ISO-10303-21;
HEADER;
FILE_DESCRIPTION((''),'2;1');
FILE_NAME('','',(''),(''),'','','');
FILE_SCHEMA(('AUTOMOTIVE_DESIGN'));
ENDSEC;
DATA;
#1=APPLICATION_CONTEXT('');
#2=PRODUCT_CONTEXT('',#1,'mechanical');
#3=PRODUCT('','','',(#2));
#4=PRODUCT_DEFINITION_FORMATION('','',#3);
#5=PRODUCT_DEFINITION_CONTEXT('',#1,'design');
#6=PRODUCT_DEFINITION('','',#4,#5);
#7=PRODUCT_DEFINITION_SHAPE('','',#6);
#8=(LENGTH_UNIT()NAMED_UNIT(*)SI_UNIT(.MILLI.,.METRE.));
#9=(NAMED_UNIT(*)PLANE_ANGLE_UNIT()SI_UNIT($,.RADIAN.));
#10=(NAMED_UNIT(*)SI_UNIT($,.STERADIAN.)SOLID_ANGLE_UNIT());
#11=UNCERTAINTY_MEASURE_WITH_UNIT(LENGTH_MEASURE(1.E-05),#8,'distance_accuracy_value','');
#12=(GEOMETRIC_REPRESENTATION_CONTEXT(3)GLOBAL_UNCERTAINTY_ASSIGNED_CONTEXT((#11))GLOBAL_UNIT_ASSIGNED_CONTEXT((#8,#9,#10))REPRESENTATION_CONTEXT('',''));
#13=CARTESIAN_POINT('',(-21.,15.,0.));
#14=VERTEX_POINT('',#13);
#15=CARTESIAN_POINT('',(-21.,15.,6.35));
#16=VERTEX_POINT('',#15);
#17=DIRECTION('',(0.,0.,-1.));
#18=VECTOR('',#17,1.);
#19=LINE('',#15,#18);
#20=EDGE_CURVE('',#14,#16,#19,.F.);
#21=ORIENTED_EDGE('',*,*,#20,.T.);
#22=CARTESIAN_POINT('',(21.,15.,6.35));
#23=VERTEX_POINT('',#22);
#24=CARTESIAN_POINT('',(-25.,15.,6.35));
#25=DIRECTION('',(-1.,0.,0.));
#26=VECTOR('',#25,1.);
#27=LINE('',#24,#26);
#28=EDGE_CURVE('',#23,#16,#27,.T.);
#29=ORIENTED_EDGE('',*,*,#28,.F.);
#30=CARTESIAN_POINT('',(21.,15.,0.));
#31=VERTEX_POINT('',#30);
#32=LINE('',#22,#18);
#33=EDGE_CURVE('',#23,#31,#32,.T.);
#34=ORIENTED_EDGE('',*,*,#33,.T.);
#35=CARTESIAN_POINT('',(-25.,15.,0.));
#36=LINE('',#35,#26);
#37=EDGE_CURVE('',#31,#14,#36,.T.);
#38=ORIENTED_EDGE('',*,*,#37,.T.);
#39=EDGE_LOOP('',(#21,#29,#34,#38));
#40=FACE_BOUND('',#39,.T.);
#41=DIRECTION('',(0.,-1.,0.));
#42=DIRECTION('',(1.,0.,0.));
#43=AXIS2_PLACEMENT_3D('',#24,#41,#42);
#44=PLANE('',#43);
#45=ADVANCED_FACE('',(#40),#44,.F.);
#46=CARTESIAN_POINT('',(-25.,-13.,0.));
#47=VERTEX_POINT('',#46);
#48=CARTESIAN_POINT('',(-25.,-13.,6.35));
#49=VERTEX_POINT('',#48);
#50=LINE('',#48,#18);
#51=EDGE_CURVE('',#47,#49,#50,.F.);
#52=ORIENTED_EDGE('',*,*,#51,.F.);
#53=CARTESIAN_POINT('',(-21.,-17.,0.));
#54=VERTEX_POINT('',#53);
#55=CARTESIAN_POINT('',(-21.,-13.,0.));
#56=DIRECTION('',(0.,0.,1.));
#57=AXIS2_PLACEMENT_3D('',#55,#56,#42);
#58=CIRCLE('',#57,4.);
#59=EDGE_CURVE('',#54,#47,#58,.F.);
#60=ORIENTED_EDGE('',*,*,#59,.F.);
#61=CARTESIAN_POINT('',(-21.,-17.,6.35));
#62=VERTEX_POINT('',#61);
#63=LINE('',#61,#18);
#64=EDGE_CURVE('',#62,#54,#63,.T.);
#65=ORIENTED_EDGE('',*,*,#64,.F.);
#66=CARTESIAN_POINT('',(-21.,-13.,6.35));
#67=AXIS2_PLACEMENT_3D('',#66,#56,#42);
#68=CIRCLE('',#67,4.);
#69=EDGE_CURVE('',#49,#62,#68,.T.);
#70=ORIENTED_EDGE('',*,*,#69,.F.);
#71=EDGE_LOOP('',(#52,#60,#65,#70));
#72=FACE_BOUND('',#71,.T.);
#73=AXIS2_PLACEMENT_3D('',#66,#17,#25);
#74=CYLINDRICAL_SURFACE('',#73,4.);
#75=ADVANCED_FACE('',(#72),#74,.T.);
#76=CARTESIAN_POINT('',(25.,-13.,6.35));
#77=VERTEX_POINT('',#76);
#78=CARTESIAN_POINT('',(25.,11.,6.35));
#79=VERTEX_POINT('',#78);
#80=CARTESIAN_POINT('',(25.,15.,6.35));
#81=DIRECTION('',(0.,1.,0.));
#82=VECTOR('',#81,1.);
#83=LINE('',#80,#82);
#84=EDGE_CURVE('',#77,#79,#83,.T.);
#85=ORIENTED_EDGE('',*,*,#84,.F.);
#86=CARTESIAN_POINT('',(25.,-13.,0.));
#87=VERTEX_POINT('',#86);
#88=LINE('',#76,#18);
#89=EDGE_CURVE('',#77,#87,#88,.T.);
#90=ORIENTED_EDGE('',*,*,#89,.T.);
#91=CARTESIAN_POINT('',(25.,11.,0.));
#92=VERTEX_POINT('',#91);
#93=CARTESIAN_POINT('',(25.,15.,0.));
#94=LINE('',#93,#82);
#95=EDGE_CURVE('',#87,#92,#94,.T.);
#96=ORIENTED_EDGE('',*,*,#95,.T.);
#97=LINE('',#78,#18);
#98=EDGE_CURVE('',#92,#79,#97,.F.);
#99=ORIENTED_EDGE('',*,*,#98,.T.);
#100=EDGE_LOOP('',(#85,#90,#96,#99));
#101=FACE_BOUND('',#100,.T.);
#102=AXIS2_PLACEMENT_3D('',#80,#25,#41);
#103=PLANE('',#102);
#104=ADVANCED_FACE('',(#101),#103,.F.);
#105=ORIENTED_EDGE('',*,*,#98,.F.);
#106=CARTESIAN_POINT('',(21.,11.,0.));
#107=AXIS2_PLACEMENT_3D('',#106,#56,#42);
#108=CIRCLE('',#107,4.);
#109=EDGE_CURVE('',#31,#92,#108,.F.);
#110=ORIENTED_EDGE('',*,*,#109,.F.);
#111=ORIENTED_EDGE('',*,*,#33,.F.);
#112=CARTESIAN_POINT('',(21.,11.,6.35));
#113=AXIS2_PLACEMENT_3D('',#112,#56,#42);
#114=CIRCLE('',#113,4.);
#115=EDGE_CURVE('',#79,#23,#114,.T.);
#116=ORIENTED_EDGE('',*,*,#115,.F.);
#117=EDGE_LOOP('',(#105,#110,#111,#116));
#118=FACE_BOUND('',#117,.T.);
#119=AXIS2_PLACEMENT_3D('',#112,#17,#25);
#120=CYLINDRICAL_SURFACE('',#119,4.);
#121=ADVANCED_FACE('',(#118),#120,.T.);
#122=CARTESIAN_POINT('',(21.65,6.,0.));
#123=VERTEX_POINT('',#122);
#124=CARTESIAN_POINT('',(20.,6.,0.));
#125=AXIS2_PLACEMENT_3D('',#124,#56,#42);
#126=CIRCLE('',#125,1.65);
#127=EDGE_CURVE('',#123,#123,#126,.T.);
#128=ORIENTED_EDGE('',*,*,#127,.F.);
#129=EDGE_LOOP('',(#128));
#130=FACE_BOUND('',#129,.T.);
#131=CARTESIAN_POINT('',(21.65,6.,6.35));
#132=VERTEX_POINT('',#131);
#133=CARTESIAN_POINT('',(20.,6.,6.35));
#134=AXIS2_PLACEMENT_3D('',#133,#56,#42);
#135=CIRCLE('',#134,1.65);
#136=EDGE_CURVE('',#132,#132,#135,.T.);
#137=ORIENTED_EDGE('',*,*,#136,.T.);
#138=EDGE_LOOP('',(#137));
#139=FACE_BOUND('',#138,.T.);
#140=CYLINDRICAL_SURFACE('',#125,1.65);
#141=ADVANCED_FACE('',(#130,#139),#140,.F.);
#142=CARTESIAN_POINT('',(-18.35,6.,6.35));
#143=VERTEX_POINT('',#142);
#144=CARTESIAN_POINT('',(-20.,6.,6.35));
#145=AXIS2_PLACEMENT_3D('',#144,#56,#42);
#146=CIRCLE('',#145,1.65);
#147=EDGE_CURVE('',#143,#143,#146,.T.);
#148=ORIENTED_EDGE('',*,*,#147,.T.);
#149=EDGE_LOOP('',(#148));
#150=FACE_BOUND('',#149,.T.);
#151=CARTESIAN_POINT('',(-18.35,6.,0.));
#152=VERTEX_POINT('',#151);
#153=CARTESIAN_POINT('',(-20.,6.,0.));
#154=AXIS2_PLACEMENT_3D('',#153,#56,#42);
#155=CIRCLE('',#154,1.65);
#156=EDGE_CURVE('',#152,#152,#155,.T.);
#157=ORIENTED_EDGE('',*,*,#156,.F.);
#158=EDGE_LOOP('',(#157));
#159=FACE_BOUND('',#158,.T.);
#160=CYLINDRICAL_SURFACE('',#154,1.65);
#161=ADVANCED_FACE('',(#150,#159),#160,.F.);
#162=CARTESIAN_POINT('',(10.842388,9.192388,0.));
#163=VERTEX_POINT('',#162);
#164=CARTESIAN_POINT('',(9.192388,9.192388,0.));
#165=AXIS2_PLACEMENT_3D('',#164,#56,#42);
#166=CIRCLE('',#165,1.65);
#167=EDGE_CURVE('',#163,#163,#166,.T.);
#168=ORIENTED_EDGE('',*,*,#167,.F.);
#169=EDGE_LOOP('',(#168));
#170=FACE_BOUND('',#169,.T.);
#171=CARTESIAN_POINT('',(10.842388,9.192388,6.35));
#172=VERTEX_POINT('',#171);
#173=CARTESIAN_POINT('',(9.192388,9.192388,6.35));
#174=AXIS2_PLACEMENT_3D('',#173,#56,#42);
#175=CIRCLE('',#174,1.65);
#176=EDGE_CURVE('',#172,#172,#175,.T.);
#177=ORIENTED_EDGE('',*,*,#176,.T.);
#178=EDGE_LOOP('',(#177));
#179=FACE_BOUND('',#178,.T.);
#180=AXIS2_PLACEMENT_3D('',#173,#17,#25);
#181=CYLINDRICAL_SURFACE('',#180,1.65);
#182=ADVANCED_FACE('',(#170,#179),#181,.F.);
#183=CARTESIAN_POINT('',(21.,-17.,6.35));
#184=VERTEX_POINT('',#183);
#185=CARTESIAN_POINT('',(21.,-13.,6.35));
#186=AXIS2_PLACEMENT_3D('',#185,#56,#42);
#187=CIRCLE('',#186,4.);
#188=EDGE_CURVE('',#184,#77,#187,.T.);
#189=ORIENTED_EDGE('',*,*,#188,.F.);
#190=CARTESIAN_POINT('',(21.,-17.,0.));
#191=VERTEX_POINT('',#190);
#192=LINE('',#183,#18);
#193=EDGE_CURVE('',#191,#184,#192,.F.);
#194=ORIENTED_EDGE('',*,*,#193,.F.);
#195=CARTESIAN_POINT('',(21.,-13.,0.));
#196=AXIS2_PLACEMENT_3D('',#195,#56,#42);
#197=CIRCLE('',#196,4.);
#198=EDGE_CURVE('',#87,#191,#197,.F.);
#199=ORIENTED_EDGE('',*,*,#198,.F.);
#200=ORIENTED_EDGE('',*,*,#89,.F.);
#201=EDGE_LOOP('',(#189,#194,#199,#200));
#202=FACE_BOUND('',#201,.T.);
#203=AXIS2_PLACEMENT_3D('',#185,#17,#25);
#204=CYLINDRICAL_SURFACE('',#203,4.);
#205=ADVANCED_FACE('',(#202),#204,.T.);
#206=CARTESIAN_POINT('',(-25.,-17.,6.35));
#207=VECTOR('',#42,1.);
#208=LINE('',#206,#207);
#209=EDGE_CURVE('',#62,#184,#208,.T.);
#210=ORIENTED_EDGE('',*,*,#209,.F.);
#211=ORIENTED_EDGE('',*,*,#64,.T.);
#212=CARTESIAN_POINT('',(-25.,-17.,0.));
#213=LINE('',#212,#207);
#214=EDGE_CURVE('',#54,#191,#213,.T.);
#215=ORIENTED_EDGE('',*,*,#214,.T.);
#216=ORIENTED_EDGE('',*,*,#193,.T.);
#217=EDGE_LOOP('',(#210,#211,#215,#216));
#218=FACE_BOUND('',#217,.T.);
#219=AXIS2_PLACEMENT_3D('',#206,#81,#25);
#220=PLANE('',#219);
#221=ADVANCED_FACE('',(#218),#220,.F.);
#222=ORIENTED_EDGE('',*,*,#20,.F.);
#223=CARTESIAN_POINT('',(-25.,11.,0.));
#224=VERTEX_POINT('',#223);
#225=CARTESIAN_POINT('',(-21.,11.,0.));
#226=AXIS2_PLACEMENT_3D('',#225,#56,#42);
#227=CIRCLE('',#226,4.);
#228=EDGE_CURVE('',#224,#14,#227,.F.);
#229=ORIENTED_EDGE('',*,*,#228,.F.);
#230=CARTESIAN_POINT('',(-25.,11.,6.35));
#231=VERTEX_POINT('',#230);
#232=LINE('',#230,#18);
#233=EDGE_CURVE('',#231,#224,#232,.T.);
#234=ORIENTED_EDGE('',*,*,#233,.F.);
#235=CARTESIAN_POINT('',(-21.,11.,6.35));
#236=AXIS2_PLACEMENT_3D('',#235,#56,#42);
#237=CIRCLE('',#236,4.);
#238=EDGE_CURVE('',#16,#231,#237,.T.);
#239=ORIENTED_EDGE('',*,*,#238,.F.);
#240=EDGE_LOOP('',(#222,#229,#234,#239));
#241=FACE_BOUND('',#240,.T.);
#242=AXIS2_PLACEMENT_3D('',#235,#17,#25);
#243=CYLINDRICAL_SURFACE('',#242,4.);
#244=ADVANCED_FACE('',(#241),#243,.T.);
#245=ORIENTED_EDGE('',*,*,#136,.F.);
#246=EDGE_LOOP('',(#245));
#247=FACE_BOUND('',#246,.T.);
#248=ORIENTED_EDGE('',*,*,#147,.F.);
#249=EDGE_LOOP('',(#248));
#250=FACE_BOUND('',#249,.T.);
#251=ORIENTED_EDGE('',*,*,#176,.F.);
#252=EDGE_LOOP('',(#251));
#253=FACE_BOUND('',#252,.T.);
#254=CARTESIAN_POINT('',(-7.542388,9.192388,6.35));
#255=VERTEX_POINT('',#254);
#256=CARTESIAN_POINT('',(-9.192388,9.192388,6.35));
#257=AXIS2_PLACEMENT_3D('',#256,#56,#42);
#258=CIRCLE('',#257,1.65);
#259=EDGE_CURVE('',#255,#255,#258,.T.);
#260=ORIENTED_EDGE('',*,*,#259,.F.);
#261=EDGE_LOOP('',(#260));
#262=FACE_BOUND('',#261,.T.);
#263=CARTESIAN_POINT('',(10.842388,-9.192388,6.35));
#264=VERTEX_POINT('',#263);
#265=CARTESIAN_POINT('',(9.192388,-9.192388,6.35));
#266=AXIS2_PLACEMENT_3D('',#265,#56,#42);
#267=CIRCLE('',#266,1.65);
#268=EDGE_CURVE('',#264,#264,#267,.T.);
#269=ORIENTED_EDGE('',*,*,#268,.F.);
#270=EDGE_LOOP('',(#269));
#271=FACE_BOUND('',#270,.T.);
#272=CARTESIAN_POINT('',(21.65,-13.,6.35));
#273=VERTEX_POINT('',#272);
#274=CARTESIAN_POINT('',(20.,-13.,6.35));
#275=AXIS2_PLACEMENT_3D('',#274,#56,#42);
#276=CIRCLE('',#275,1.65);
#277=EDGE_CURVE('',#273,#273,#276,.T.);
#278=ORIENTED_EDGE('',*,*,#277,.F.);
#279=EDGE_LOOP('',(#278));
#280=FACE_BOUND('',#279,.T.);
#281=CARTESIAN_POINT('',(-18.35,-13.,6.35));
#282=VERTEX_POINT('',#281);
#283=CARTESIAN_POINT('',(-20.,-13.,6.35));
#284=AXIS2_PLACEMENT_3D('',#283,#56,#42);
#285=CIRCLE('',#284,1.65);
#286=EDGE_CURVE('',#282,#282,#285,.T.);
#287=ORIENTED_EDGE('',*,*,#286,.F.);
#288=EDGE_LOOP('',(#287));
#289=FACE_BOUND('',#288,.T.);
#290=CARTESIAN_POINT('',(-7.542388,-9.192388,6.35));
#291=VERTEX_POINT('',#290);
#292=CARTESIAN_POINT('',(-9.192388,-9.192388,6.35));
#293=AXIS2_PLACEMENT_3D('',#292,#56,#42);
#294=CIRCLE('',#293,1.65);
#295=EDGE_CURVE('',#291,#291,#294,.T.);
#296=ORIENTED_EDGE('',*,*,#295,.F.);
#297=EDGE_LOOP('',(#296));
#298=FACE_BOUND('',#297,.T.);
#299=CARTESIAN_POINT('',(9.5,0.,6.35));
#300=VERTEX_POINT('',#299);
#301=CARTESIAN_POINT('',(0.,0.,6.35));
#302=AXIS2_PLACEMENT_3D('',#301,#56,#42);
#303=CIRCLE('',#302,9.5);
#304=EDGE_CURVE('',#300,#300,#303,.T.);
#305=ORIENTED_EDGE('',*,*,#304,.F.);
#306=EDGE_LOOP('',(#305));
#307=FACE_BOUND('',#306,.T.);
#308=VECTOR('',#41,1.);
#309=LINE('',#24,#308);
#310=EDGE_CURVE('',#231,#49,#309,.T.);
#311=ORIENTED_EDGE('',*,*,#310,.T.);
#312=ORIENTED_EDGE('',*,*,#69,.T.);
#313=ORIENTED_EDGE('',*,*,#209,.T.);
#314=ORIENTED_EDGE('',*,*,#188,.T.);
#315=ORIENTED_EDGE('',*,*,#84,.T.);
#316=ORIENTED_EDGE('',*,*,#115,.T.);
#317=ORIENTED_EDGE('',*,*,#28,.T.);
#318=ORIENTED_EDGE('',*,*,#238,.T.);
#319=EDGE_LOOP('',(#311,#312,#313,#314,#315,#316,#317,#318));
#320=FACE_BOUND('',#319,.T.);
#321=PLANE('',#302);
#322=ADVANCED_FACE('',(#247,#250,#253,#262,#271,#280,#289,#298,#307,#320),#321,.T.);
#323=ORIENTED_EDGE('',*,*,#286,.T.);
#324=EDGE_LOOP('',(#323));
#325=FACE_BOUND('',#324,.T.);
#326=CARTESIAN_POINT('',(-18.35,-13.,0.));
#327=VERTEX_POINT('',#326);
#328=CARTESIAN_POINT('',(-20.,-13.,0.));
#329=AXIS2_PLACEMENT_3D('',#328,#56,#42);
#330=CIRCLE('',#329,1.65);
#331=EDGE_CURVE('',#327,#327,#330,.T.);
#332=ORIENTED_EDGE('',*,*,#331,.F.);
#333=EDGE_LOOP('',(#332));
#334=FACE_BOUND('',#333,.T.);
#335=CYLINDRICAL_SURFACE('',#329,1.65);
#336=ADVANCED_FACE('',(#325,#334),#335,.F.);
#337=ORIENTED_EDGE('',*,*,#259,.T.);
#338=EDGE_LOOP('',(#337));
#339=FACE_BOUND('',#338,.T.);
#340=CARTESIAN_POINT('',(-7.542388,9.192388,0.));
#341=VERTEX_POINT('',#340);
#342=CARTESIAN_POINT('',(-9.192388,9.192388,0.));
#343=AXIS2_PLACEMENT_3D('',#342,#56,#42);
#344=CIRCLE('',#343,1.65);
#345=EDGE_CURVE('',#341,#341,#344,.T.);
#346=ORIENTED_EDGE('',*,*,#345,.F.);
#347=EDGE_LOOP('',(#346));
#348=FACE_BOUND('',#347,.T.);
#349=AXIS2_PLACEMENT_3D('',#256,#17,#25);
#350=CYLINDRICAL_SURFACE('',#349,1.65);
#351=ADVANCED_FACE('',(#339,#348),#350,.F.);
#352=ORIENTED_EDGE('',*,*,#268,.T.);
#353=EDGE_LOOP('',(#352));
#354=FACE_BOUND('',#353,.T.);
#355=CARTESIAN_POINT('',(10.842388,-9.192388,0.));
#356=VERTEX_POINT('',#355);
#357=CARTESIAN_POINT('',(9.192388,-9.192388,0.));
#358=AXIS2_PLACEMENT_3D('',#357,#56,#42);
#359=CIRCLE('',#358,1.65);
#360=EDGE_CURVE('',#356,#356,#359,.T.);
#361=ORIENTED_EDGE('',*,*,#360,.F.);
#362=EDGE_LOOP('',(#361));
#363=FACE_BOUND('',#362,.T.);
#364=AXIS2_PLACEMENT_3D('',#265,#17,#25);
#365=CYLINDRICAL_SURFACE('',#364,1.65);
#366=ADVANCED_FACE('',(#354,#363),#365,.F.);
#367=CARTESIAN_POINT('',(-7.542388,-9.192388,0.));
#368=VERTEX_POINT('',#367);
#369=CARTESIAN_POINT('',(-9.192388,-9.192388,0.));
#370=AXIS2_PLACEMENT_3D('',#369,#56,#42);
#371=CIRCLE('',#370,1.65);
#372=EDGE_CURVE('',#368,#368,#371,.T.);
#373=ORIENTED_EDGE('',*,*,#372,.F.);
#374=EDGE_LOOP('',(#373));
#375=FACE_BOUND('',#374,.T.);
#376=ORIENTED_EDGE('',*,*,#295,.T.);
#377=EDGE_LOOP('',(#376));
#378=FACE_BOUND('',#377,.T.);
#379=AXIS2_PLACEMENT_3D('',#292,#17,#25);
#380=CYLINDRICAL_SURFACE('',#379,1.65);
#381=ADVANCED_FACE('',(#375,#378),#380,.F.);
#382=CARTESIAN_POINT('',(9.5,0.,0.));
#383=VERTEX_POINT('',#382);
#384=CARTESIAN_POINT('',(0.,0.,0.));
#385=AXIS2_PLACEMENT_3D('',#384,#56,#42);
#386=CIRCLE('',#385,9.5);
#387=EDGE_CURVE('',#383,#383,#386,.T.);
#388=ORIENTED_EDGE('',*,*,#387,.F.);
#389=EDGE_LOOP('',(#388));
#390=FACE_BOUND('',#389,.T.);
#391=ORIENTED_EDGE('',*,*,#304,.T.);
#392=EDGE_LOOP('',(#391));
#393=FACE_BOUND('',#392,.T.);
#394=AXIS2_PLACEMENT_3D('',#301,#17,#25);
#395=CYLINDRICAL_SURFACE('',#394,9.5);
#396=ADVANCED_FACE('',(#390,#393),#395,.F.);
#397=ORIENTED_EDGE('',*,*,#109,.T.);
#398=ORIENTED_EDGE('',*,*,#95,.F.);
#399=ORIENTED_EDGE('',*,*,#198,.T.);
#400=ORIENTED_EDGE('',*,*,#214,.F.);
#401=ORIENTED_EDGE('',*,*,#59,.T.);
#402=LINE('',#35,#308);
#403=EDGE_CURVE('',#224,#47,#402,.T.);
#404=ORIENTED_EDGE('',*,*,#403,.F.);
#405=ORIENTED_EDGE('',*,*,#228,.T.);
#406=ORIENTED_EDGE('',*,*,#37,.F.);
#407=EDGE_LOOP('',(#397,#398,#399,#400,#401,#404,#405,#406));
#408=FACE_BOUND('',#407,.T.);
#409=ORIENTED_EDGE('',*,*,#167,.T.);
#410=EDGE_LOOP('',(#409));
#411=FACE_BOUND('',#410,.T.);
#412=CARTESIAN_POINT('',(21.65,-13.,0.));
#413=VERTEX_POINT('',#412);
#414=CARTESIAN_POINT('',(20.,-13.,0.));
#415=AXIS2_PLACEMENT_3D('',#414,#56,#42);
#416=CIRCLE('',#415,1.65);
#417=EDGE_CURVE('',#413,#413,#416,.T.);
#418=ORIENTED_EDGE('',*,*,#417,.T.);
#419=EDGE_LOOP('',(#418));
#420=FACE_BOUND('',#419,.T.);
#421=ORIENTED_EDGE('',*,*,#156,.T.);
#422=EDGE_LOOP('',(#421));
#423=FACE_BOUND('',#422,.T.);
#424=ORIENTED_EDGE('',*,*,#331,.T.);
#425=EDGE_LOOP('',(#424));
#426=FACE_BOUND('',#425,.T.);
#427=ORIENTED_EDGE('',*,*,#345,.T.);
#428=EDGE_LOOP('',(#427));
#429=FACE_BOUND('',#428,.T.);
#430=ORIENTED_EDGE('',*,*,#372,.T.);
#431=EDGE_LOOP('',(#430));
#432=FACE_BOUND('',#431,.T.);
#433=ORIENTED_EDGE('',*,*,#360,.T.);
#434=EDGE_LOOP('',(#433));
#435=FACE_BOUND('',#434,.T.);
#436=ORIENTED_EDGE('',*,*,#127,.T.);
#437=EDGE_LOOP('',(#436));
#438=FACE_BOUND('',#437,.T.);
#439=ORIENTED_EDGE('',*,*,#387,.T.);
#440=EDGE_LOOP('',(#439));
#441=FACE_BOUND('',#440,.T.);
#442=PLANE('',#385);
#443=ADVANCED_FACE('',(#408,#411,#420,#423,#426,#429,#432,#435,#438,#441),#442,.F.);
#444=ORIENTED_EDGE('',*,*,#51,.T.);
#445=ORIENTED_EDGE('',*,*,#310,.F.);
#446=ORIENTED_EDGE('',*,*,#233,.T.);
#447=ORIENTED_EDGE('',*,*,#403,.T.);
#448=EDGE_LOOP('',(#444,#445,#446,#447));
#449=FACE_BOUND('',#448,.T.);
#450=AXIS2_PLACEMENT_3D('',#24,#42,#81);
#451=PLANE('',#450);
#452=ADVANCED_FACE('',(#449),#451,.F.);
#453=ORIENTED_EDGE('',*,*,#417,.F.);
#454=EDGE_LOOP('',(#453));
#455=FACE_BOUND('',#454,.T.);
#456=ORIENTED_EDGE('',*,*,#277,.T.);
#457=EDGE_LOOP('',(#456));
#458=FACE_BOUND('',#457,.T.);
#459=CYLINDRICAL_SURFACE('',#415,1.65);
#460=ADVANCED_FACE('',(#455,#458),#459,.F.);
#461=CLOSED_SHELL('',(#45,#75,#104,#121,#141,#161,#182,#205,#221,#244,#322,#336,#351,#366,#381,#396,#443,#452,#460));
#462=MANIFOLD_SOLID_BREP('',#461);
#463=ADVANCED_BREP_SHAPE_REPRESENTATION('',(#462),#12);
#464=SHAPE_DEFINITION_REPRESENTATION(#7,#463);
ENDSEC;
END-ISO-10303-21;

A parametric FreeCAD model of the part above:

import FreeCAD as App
import Part
import Sketcher
from FreeCAD import Vector


def edges_at(feature, points):
    """Names of the edges that pass closest to the given points."""
    edges = feature.Shape.Edges
    near = lambda p: min(range(len(edges)), key=lambda i: edges[i].distToShape(Part.Vertex(*p))[0])
    return sorted({f"Edge{near(p) + 1}" for p in points})

doc = App.newDocument("Part")
params = doc.addObject("Spreadsheet::Sheet", "Params")
for row, (alias, value) in enumerate([
    ("sketch1_diameter", "19 mm"),
    ("sketch1_diameter2", "3.3 mm"),
    ("sketch1_width", "50 mm"),
    ("sketch1_height", "32 mm"),
    ("pad1_length", "6.35 mm"),
    ("sketch2_diameter", "3.3 mm"),
    ("fillet_radius", "4 mm"),
], start=1):
    params.set(f"A{row}", alias)
    params.set(f"B{row}", "=" + value)
    params.setAlias(f"B{row}", alias)

body = doc.addObject("PartDesign::Body", "Body")

# Sketch on XY plane
sketch1 = body.newObject("Sketcher::SketchObject", "Sketch")
sketch1.AttachmentSupport = (doc.getObject("XY_Plane"), [""])
sketch1.MapMode = "FlatFace"
sketch1.addGeometry(Part.LineSegment(Vector(-25, 15, 0), Vector(-25, -17, 0)), False)
sketch1.addGeometry(Part.LineSegment(Vector(-25, -17, 0), Vector(25, -17, 0)), False)
sketch1.addGeometry(Part.LineSegment(Vector(25, -17, 0), Vector(25, 15, 0)), False)
sketch1.addGeometry(Part.LineSegment(Vector(25, 15, 0), Vector(-25, 15, 0)), False)
sketch1.addGeometry(Part.Circle(Vector(-9.192388, -9.192388, 0), Vector(0, 0, 1), 1.65), False)
sketch1.addGeometry(Part.Circle(Vector(9.192388, -9.192388, 0), Vector(0, 0, 1), 1.65), False)
sketch1.addGeometry(Part.Circle(Vector(-9.192388, 9.192388, 0), Vector(0, 0, 1), 1.65), False)
sketch1.addGeometry(Part.Circle(Vector(0, 0, 0), Vector(0, 0, 1), 9.5), False)
sketch1.addGeometry(Part.Circle(Vector(9.192388, 9.192388, 0), Vector(0, 0, 1), 1.65), False)
sketch1.addConstraint(Sketcher.Constraint("Coincident", 0, 2, 1, 1))
sketch1.addConstraint(Sketcher.Constraint("Coincident", 1, 2, 2, 1))
sketch1.addConstraint(Sketcher.Constraint("Coincident", 2, 2, 3, 1))
sketch1.addConstraint(Sketcher.Constraint("Coincident", 3, 2, 0, 1))
sketch1.addConstraint(Sketcher.Constraint("Vertical", 0))
sketch1.addConstraint(Sketcher.Constraint("Horizontal", 1))
sketch1.addConstraint(Sketcher.Constraint("Vertical", 2))
sketch1.addConstraint(Sketcher.Constraint("Horizontal", 3))
sketch1.addConstraint(Sketcher.Constraint("Coincident", 7, 3, -1, 1))
sketch1.addConstraint(Sketcher.Constraint("Equal", 4, 5))
sketch1.addConstraint(Sketcher.Constraint("Equal", 5, 6))
sketch1.addConstraint(Sketcher.Constraint("Equal", 6, 8))
sketch1.addConstraint(Sketcher.Constraint("Symmetric", 5, 3, 6, 3, -1, 1))
sketch1.addConstraint(Sketcher.Constraint("Symmetric", 4, 3, 8, 3, -1, 1))
sketch1.addConstraint(Sketcher.Constraint("Symmetric", 4, 3, 5, 3, -2))
sketch1.addConstraint(Sketcher.Constraint("Diameter", 7, 19.0))
sketch1.addConstraint(Sketcher.Constraint("Diameter", 4, 3.3))
sketch1.addConstraint(Sketcher.Constraint("DistanceX", 1, 1, 1, 2, 50.0))
sketch1.addConstraint(Sketcher.Constraint("DistanceY", 0, 2, 0, 1, 32.0))
sketch1.addConstraint(Sketcher.Constraint("DistanceX", 0, 2, -1, 1, 25.0))
sketch1.addConstraint(Sketcher.Constraint("DistanceY", 0, 2, -1, 1, 17.0))
sketch1.addConstraint(Sketcher.Constraint("DistanceX", 4, 3, -1, 1, 9.192388))
sketch1.addConstraint(Sketcher.Constraint("DistanceY", 4, 3, -1, 1, 9.192388))
sketch1.setExpression("Constraints[15]", "Params.sketch1_diameter")
sketch1.setExpression("Constraints[16]", "Params.sketch1_diameter2")
sketch1.setExpression("Constraints[17]", "Params.sketch1_width")
sketch1.setExpression("Constraints[18]", "Params.sketch1_height")
pad1 = body.newObject("PartDesign::Pad", "Pad")
pad1.Profile = sketch1
pad1.setExpression("Length", "Params.pad1_length")

# Sketch on XY plane
sketch2 = body.newObject("Sketcher::SketchObject", "Sketch001")
sketch2.AttachmentSupport = (doc.getObject("XY_Plane"), [""])
sketch2.MapMode = "FlatFace"
sketch2.AttachmentOffset = App.Placement(Vector(0, 0, 6.35), App.Rotation())
sketch2.addGeometry(Part.Circle(Vector(-20, 6, 0), Vector(0, 0, 1), 1.65), False)
sketch2.addGeometry(Part.Circle(Vector(-20, -13, 0), Vector(0, 0, 1), 1.65), False)
sketch2.addGeometry(Part.Circle(Vector(20, -13, 0), Vector(0, 0, 1), 1.65), False)
sketch2.addGeometry(Part.Circle(Vector(20, 6, 0), Vector(0, 0, 1), 1.65), False)
sketch2.addConstraint(Sketcher.Constraint("Equal", 0, 1))
sketch2.addConstraint(Sketcher.Constraint("Equal", 1, 2))
sketch2.addConstraint(Sketcher.Constraint("Equal", 2, 3))
sketch2.addConstraint(Sketcher.Constraint("Symmetric", 1, 3, 2, 3, -2))
sketch2.addConstraint(Sketcher.Constraint("Symmetric", 0, 3, 3, 3, -2))
sketch2.addConstraint(Sketcher.Constraint("Vertical", 0, 3, 1, 3))
sketch2.addConstraint(Sketcher.Constraint("Diameter", 0, 3.3))
sketch2.addConstraint(Sketcher.Constraint("DistanceX", 0, 3, -1, 1, 20.0))
sketch2.addConstraint(Sketcher.Constraint("DistanceY", -1, 1, 0, 3, 6.0))
sketch2.addConstraint(Sketcher.Constraint("DistanceY", 1, 3, -1, 1, 13.0))
sketch2.setExpression("Constraints[6]", "Params.sketch2_diameter")
pocket1 = body.newObject("PartDesign::Pocket", "Pocket")
pocket1.Profile = sketch2
pocket1.Type = "ThroughAll"
doc.recompute()

fillet = body.newObject("PartDesign::Fillet", "Fillet")
fillet.Base = (pocket1, edges_at(pocket1, [
    (-25, 15, 3.175),
    (25, 15, 3.175),
    (25, -17, 3.175),
    (-25, -17, 3.175),
]))
fillet.setExpression("Radius", "Params.fillet_radius")

doc.recompute()
